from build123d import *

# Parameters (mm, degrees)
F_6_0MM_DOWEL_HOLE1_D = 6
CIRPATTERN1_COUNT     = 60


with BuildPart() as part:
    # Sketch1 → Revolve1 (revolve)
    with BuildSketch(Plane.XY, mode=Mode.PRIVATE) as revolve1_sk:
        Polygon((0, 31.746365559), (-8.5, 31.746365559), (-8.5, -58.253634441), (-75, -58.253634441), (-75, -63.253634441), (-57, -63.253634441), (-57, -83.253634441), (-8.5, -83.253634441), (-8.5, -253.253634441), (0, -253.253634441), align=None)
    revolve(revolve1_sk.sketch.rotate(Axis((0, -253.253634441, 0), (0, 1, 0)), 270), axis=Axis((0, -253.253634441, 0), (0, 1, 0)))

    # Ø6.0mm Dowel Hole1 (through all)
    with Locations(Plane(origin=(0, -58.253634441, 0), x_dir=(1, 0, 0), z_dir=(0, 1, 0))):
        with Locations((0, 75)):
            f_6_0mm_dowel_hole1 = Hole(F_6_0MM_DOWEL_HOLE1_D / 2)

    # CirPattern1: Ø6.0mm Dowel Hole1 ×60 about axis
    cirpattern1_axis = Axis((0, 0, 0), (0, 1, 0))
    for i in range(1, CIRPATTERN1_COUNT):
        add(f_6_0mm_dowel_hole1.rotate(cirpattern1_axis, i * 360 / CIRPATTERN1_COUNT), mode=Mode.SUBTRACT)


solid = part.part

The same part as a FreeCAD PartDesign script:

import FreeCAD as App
import Part
import Sketcher

V = App.Vector


def add_polygon(sketch, points):
    """Adds a closed chain of lines whose ends are joined by coincident constraints."""
    first, n = sketch.GeometryCount, len(points)
    for a, b in zip(points, points[1:] + points[:1]):
        sketch.addGeometry(Part.LineSegment(App.Vector(*a, 0), App.Vector(*b, 0)), False)
    for i in range(n):
        sketch.addConstraint(Sketcher.Constraint("Coincident", first + i, 2, first + (i + 1) % n, 1))

doc = App.newDocument("Part")
body = doc.addObject("PartDesign::Body", "Body")

# Sketch on XY plane
sketch1 = doc.addObject("Sketcher::SketchObject", "Sketch")
body.addObject(sketch1)
sketch1.AttachmentSupport = (doc.XY_Plane, [""])
sketch1.MapMode = "FlatFace"
add_polygon(sketch1, [(0, 32), (-8, 32), (-8, -58), (-75, -58), (-75, -63), (-57, -63), (-57, -83), (-8, -83), (-8, -253), (0, -253)])  # lines 0-9
sketch1.addConstraint([
    Sketcher.Constraint("Horizontal", 0),
    Sketcher.Constraint("Vertical", 1),
    Sketcher.Constraint("Horizontal", 2),
    Sketcher.Constraint("Vertical", 3),
    Sketcher.Constraint("Horizontal", 4),
    Sketcher.Constraint("Vertical", 5),
    Sketcher.Constraint("Horizontal", 6),
    Sketcher.Constraint("Vertical", 7),
    Sketcher.Constraint("Horizontal", 8),
    Sketcher.Constraint("Vertical", 9),
    Sketcher.Constraint("PointOnObject", 8, 2, -2),
    Sketcher.Constraint("Vertical", 1, 2, 6, 2),
    Sketcher.Constraint("DistanceX", 4, 1, 4, 2, 18.0),
    Sketcher.Constraint("DistanceY", 1, 2, 1, 1, 90.0),
    Sketcher.Constraint("DistanceY", 3, 2, 3, 1, 5.0),
    Sketcher.Constraint("DistanceY", 5, 2, 5, 1, 20.0),
    Sketcher.Constraint("DistanceY", 7, 2, 7, 1, 170.0),
    Sketcher.Constraint("DistanceX", 0, 2, 0, 1, 8.5),
    Sketcher.Constraint("DistanceX", 2, 2, 2, 1, 66.5),
    Sketcher.Constraint("DistanceY", -1, 1, 0, 2, 31.746366),
])
revolution = doc.addObject("PartDesign::Revolution", "Revolution")
body.addObject(revolution)
revolution.Profile = sketch1
revolution.ReferenceAxis = (sketch1, ["V_Axis"])
revolution.Angle = 360

# Sketch on XZ plane
sketch2 = doc.addObject("Sketcher::SketchObject", "Sketch001")
body.addObject(sketch2)
sketch2.AttachmentSupport = (doc.XZ_Plane, [""])
sketch2.MapMode = "FlatFace"
sketch2.AttachmentOffset = App.Placement(V(0, 0, 58.253634), App.Rotation())
sketch2.addGeometry(Part.Circle(V(0, -75, 0), V(0, 0, 1), 3), False)
sketch2.addConstraint([
    Sketcher.Constraint("PointOnObject", 0, 3, -2),
    Sketcher.Constraint("Diameter", 0, 6.0),
    Sketcher.Constraint("DistanceY", 0, 3, -1, 1, 75.0),
])
doc.recompute()
hole = doc.addObject("PartDesign::Hole", "Hole")
body.addObject(hole)
hole.Profile = sketch2
hole.ThreadType = "None"
hole.Diameter = 6
hole.DepthType = "ThroughAll"
hole.Reversed = True
doc.recompute()

polarpattern = doc.addObject("PartDesign::PolarPattern", "PolarPattern")
body.addObject(polarpattern)
polarpattern.Originals = [hole]
polarpattern.Axis = (doc.Y_Axis, [""])
polarpattern.Angle = 360
polarpattern.Occurrences = 60
body.Tip = polarpattern

doc.recompute()
